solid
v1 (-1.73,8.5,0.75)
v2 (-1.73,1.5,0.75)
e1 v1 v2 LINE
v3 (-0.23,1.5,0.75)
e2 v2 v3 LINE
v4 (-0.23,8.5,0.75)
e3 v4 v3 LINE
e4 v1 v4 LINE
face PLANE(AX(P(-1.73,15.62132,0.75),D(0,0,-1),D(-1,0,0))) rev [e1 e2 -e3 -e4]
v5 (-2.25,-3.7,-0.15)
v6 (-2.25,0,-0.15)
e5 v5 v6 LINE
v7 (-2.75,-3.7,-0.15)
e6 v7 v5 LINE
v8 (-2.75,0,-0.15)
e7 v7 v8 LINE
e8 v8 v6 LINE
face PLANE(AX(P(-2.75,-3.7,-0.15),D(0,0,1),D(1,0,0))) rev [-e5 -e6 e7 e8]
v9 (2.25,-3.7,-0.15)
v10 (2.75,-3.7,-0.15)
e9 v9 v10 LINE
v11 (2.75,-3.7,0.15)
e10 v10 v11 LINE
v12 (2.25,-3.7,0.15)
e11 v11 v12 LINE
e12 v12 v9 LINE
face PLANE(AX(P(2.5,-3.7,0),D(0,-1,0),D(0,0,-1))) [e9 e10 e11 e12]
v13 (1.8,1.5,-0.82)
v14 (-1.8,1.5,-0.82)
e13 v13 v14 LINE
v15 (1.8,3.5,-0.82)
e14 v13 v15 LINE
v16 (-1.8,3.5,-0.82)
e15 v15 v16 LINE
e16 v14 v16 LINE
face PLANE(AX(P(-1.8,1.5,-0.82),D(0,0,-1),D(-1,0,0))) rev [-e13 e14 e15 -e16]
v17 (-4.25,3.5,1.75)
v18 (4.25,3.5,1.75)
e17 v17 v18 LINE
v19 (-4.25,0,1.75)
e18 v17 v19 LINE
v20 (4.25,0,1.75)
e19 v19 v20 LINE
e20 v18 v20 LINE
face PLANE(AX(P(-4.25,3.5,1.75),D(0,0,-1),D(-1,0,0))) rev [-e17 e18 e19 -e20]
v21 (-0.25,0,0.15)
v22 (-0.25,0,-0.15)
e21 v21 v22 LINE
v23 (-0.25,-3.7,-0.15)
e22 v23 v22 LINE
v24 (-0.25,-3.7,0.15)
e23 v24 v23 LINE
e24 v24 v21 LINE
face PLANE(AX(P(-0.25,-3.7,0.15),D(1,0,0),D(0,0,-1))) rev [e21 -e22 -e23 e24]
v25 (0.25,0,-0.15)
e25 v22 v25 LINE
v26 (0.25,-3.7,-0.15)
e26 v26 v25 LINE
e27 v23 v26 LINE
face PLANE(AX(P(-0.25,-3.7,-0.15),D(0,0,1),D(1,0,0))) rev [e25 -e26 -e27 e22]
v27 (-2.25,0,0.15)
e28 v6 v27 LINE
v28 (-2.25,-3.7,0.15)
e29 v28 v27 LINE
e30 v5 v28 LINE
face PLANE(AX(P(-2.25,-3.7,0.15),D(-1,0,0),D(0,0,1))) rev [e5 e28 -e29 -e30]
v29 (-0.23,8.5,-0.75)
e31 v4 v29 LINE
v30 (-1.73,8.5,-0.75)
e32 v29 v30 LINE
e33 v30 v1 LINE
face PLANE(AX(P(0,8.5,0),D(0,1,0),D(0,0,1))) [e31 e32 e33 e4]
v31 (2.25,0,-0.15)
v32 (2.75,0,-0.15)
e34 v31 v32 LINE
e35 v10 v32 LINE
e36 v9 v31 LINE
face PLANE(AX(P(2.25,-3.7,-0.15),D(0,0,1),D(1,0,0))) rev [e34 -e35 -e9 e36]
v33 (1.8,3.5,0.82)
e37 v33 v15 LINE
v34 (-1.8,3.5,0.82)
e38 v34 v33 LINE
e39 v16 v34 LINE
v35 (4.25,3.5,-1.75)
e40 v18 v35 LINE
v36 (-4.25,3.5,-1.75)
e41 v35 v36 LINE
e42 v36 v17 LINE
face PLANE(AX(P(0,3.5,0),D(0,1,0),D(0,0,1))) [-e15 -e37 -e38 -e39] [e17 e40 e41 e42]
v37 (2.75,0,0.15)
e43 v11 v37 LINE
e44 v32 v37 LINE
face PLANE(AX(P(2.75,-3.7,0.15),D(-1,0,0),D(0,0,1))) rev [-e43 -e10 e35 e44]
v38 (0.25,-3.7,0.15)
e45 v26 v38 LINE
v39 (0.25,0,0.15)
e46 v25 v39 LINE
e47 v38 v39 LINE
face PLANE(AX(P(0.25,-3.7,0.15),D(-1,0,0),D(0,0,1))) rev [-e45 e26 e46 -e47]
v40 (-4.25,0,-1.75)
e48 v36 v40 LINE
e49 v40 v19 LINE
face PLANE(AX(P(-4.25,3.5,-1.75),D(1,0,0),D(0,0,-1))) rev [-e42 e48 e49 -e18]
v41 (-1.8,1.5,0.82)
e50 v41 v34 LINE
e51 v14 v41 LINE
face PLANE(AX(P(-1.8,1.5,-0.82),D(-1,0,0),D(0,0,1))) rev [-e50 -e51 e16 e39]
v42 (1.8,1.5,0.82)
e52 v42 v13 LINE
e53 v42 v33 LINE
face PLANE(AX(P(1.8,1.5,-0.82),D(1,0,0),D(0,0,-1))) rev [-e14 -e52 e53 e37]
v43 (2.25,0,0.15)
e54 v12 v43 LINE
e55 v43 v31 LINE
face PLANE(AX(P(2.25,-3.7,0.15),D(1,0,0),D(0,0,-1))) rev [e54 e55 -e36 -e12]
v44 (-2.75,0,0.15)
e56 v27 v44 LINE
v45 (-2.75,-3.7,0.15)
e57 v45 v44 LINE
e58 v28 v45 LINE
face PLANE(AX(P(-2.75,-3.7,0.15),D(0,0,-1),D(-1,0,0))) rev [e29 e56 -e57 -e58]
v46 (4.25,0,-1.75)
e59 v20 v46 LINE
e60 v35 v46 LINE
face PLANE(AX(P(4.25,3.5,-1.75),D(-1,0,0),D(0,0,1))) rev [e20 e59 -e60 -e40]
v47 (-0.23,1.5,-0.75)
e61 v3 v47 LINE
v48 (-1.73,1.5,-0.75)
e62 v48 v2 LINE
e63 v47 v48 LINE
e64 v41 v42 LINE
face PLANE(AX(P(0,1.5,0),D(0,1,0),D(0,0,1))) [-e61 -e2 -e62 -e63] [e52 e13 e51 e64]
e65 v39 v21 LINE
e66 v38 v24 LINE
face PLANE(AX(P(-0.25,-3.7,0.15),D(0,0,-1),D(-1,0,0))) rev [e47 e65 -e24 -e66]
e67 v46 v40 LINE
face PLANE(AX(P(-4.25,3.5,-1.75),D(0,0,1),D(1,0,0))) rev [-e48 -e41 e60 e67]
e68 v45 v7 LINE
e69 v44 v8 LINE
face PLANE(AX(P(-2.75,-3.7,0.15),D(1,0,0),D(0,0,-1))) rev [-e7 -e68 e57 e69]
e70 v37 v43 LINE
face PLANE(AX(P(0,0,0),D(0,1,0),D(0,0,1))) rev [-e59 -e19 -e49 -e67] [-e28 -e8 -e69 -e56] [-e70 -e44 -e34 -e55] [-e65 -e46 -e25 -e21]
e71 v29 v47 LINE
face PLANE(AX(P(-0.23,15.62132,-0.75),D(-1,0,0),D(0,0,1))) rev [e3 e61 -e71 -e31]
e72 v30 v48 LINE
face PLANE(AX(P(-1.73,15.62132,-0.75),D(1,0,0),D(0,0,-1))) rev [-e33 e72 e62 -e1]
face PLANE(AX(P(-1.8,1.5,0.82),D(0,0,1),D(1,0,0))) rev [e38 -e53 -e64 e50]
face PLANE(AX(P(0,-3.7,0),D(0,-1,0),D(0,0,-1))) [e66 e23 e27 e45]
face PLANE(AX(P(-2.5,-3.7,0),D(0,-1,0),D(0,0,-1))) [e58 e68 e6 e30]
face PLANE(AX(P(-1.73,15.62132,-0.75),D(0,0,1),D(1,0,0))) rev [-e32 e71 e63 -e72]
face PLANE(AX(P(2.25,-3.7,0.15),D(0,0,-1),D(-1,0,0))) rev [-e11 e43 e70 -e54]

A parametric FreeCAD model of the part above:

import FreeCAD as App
import Part
import Sketcher

V = App.Vector

doc = App.newDocument("Part")
body = doc.addObject("PartDesign::Body", "Body")

# Sketch on XZ plane
sketch1 = body.newObject("Sketcher::SketchObject", "Sketch")
sketch1.AttachmentSupport = (doc.getObject("XZ_Plane"), [""])
sketch1.MapMode = "FlatFace"
sketch1.addGeometry([
    Part.LineSegment(V(-4.2, -1.8, 0), V(-4.2, 1.8, 0)),
    Part.LineSegment(V(-4.2, 1.8, 0), V(4.2, 1.8, 0)),
    Part.LineSegment(V(4.2, 1.8, 0), V(4.2, -1.8, 0)),
    Part.LineSegment(V(4.2, -1.8, 0), V(-4.2, -1.8, 0)),
], False)
sketch1.addConstraint([
    Sketcher.Constraint("Coincident", 0, 2, 1, 1),
    Sketcher.Constraint("Coincident", 1, 2, 2, 1),
    Sketcher.Constraint("Coincident", 2, 2, 3, 1),
    Sketcher.Constraint("Coincident", 3, 2, 0, 1),
    Sketcher.Constraint("Vertical", 0),
    Sketcher.Constraint("Horizontal", 1),
    Sketcher.Constraint("Vertical", 2),
    Sketcher.Constraint("Horizontal", 3),
    Sketcher.Constraint("Symmetric", 0, 2, 2, 2, -1, 1),
    Sketcher.Constraint("DistanceX", 1, 1, 1, 2, 8.5),
    Sketcher.Constraint("DistanceY", 0, 1, 0, 2, 3.5),
])
pad1 = body.newObject("PartDesign::Pad", "Pad")
pad1.Profile = sketch1
pad1.Length = 3.5
pad1.Reversed = True

# Sketch on XZ plane
sketch2 = body.newObject("Sketcher::SketchObject", "Sketch001")
sketch2.AttachmentSupport = (doc.getObject("XZ_Plane"), [""])
sketch2.MapMode = "FlatFace"
sketch2.AttachmentOffset = App.Placement(V(0, 0, -3.5), App.Rotation())
sketch2.addGeometry([
    Part.LineSegment(V(-1.8, -0.8, 0), V(-1.8, 0.8, 0)),
    Part.LineSegment(V(-1.8, 0.8, 0), V(1.8, 0.8, 0)),
    Part.LineSegment(V(1.8, 0.8, 0), V(1.8, -0.8, 0)),
    Part.LineSegment(V(1.8, -0.8, 0), V(-1.8, -0.8, 0)),
], False)
sketch2.addConstraint([
    Sketcher.Constraint("Coincident", 0, 2, 1, 1),
    Sketcher.Constraint("Coincident", 1, 2, 2, 1),
    Sketcher.Constraint("Coincident", 2, 2, 3, 1),
    Sketcher.Constraint("Coincident", 3, 2, 0, 1),
    Sketcher.Constraint("Vertical", 0),
    Sketcher.Constraint("Horizontal", 1),
    Sketcher.Constraint("Vertical", 2),
    Sketcher.Constraint("Horizontal", 3),
    Sketcher.Constraint("Symmetric", 0, 2, 2, 2, -1, 1),
    Sketcher.Constraint("DistanceX", 1, 1, 1, 2, 3.6),
    Sketcher.Constraint("DistanceY", 0, 1, 0, 2, 1.64),
])
pocket1 = body.newObject("PartDesign::Pocket", "Pocket")
pocket1.Profile = sketch2
pocket1.Length = 2
pocket1.Reversed = True

# Sketch on XZ plane
sketch3 = body.newObject("Sketcher::SketchObject", "Sketch002")
sketch3.AttachmentSupport = (doc.getObject("XZ_Plane"), [""])
sketch3.MapMode = "FlatFace"
sketch3.AttachmentOffset = App.Placement(V(0, 0, -1.5), App.Rotation())
sketch3.addGeometry([
    Part.LineSegment(V(-1.7, -0.8, 0), V(-1.7, 0.8, 0)),
    Part.LineSegment(V(-1.7, 0.8, 0), V(-0.2, 0.8, 0)),
    Part.LineSegment(V(-0.2, 0.8, 0), V(-0.2, -0.8, 0)),
    Part.LineSegment(V(-0.2, -0.8, 0), V(-1.7, -0.8, 0)),
], False)
sketch3.addConstraint([
    Sketcher.Constraint("Coincident", 0, 2, 1, 1),
    Sketcher.Constraint("Coincident", 1, 2, 2, 1),
    Sketcher.Constraint("Coincident", 2, 2, 3, 1),
    Sketcher.Constraint("Coincident", 3, 2, 0, 1),
    Sketcher.Constraint("Vertical", 0),
    Sketcher.Constraint("Horizontal", 1),
    Sketcher.Constraint("Vertical", 2),
    Sketcher.Constraint("Horizontal", 3),
    Sketcher.Constraint("Equal", 3, 0),
    Sketcher.Constraint("DistanceX", 1, 1, 1, 2, 1.5),
    Sketcher.Constraint("DistanceX", 0, 2, -1, 1, 1.73),
    Sketcher.Constraint("DistanceY", -1, 1, 0, 2, 0.75),
])
pad2 = body.newObject("PartDesign::Pad", "Pad001")
pad2.Profile = sketch3
pad2.Length = 7
pad2.Reversed = True

# Sketch on XZ plane
sketch4 = body.newObject("Sketcher::SketchObject", "Sketch003")
sketch4.AttachmentSupport = (doc.getObject("XZ_Plane"), [""])
sketch4.MapMode = "FlatFace"
sketch4.addGeometry([
    Part.LineSegment(V(-0.25, 0.15, 0), V(-0.25, -0.15, 0)),
    Part.LineSegment(V(-0.25, -0.15, 0), V(0.25, -0.15, 0)),
    Part.LineSegment(V(0.25, -0.15, 0), V(0.25, 0.15, 0)),
    Part.LineSegment(V(0.25, 0.15, 0), V(-0.25, 0.15, 0)),
], False)
sketch4.addConstraint([
    Sketcher.Constraint("Coincident", 0, 2, 1, 1),
    Sketcher.Constraint("Coincident", 1, 2, 2, 1),
    Sketcher.Constraint("Coincident", 2, 2, 3, 1),
    Sketcher.Constraint("Coincident", 3, 2, 0, 1),
    Sketcher.Constraint("Vertical", 0),
    Sketcher.Constraint("Horizontal", 1),
    Sketcher.Constraint("Vertical", 2),
    Sketcher.Constraint("Horizontal", 3),
    Sketcher.Constraint("Symmetric", 0, 2, 2, 2, -1, 1),
    Sketcher.Constraint("DistanceX", 1, 1, 1, 2, 0.5),
    Sketcher.Constraint("DistanceY", 0, 2, 0, 1, 0.3),
])
pad3 = body.newObject("PartDesign::Pad", "Pad002")
pad3.Profile = sketch4
pad3.Length = 3.7
doc.recompute()

linearpattern = body.newObject("PartDesign::LinearPattern", "LinearPattern")
linearpattern.Originals = [pad3]
linearpattern.Direction = (doc.getObject("X_Axis"), [""])
linearpattern.Mode = "offset"
linearpattern.Offset = 2.5
linearpattern.Occurrences = 2
body.Tip = linearpattern
doc.recompute()

linearpattern2 = body.newObject("PartDesign::LinearPattern", "LinearPattern001")
linearpattern2.Originals = [pad3]
linearpattern2.Direction = (doc.getObject("X_Axis"), [""])
linearpattern2.Mode = "offset"
linearpattern2.Offset = 2.5
linearpattern2.Occurrences = 2
linearpattern2.Reversed = True
body.Tip = linearpattern2

doc.recompute()
